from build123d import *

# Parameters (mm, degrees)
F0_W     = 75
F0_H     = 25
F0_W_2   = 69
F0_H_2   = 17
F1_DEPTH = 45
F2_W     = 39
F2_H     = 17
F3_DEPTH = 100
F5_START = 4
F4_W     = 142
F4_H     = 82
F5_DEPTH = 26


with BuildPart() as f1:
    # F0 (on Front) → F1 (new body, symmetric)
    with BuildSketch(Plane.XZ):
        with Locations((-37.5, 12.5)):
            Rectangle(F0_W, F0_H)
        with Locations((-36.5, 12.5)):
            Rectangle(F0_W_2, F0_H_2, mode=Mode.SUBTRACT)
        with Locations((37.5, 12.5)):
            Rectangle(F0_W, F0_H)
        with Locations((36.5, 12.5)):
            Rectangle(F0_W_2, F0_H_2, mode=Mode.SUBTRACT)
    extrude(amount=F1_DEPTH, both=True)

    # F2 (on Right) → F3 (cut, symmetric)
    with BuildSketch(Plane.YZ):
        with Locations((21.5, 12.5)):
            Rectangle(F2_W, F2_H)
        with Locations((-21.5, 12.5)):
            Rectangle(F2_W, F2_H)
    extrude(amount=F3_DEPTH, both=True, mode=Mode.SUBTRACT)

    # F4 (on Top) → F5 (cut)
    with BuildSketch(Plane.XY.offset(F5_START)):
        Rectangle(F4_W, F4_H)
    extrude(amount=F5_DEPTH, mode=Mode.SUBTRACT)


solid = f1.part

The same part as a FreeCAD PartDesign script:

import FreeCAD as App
import Part
import Sketcher
from FreeCAD import Vector
Q = App.Units.Quantity


def add_polygon(sketch, points):
    """Adds a closed chain of lines whose ends are joined by coincident constraints."""
    first, n = sketch.GeometryCount, len(points)
    for a, b in zip(points, points[1:] + points[:1]):
        sketch.addGeometry(Part.LineSegment(App.Vector(*a, 0), App.Vector(*b, 0)), False)
    for i in range(n):
        sketch.addConstraint(Sketcher.Constraint("Coincident", first + i, 2, first + (i + 1) % n, 1))

doc = App.newDocument("Part")
body = doc.addObject("PartDesign::Body", "Body")

# Sketch on XZ plane
sketch1 = body.newObject("Sketcher::SketchObject", "Sketch")
sketch1.AttachmentSupport = (doc.getObject("XZ_Plane"), [""])
sketch1.MapMode = "FlatFace"
add_polygon(sketch1, [(-75, 25), (-75, 0), (75, 0), (75, 25)])  # lines 0-3
add_polygon(sketch1, [(-2, 4), (-71, 4), (-71, 21), (-2, 21)])  # lines 4-7
add_polygon(sketch1, [(71, 4), (2, 4), (2, 21), (71, 21)])  # lines 8-11
sketch1.addConstraint(Sketcher.Constraint("Vertical", 0))
sketch1.addConstraint(Sketcher.Constraint("Horizontal", 1))
sketch1.addConstraint(Sketcher.Constraint("Vertical", 2))
sketch1.addConstraint(Sketcher.Constraint("Horizontal", 3))
sketch1.addConstraint(Sketcher.Constraint("Horizontal", 4))
sketch1.addConstraint(Sketcher.Constraint("Vertical", 5))
sketch1.addConstraint(Sketcher.Constraint("Horizontal", 6))
sketch1.addConstraint(Sketcher.Constraint("Vertical", 7))
sketch1.addConstraint(Sketcher.Constraint("Horizontal", 8))
sketch1.addConstraint(Sketcher.Constraint("Vertical", 9))
sketch1.addConstraint(Sketcher.Constraint("Horizontal", 10))
sketch1.addConstraint(Sketcher.Constraint("Vertical", 11))
sketch1.addConstraint(Sketcher.Constraint("Symmetric", 0, 2, 1, 2, -1, 1))
sketch1.addConstraint(Sketcher.Constraint("Symmetric", 7, 2, 8, 2, -2))
sketch1.addConstraint(Sketcher.Constraint("Symmetric", 5, 2, 10, 2, -2))
sketch1.addConstraint(Sketcher.Constraint("DistanceX", 1, 1, 1, 2, Q("150 mm")))
sketch1.addConstraint(Sketcher.Constraint("DistanceX", 4, 2, 4, 1, Q("69 mm")))
sketch1.addConstraint(Sketcher.Constraint("DistanceY", 0, 2, 0, 1, Q("25 mm")))
sketch1.addConstraint(Sketcher.Constraint("DistanceY", 5, 1, 5, 2, Q("17 mm")))
sketch1.addConstraint(Sketcher.Constraint("DistanceX", 4, 2, -1, 1, Q("71 mm")))
sketch1.addConstraint(Sketcher.Constraint("DistanceY", -1, 1, 4, 2, Q("4 mm")))
pad1 = body.newObject("PartDesign::Pad", "Pad")
pad1.Profile = sketch1
pad1.Length = 90
pad1.Midplane = True

# Sketch on YZ plane
sketch2 = body.newObject("Sketcher::SketchObject", "Sketch001")
sketch2.AttachmentSupport = (doc.getObject("YZ_Plane"), [""])
sketch2.MapMode = "FlatFace"
add_polygon(sketch2, [(2, 21), (2, 4), (41, 4), (41, 21)])  # lines 0-3
add_polygon(sketch2, [(-41, 21), (-41, 4), (-2, 4), (-2, 21)])  # lines 4-7
sketch2.addConstraint(Sketcher.Constraint("Vertical", 0))
sketch2.addConstraint(Sketcher.Constraint("Horizontal", 1))
sketch2.addConstraint(Sketcher.Constraint("Vertical", 2))
sketch2.addConstraint(Sketcher.Constraint("Horizontal", 3))
sketch2.addConstraint(Sketcher.Constraint("Vertical", 4))
sketch2.addConstraint(Sketcher.Constraint("Horizontal", 5))
sketch2.addConstraint(Sketcher.Constraint("Vertical", 6))
sketch2.addConstraint(Sketcher.Constraint("Horizontal", 7))
sketch2.addConstraint(Sketcher.Constraint("Symmetric", 1, 2, 4, 2, -2))
sketch2.addConstraint(Sketcher.Constraint("Symmetric", 3, 2, 6, 2, -2))
sketch2.addConstraint(Sketcher.Constraint("DistanceX", 1, 1, 1, 2, Q("39 mm")))
sketch2.addConstraint(Sketcher.Constraint("DistanceY", 0, 2, 0, 1, Q("17 mm")))
sketch2.addConstraint(Sketcher.Constraint("DistanceX", -1, 1, 0, 2, Q("2 mm")))
sketch2.addConstraint(Sketcher.Constraint("DistanceY", -1, 1, 0, 2, Q("4 mm")))
pocket1 = body.newObject("PartDesign::Pocket", "Pocket")
pocket1.Profile = sketch2
pocket1.Length = 200
pocket1.Midplane = True

# Sketch on XY plane
sketch3 = body.newObject("Sketcher::SketchObject", "Sketch002")
sketch3.AttachmentSupport = (doc.getObject("XY_Plane"), [""])
sketch3.MapMode = "FlatFace"
sketch3.AttachmentOffset = App.Placement(Vector(0, 0, 4), App.Rotation())
add_polygon(sketch3, [(-71, 41), (-71, -41), (71, -41), (71, 41)])  # lines 0-3
sketch3.addConstraint(Sketcher.Constraint("Vertical", 0))
sketch3.addConstraint(Sketcher.Constraint("Horizontal", 1))
sketch3.addConstraint(Sketcher.Constraint("Vertical", 2))
sketch3.addConstraint(Sketcher.Constraint("Horizontal", 3))
sketch3.addConstraint(Sketcher.Constraint("Symmetric", 0, 2, 2, 2, -1, 1))
sketch3.addConstraint(Sketcher.Constraint("DistanceX", 1, 1, 1, 2, Q("142 mm")))
sketch3.addConstraint(Sketcher.Constraint("DistanceY", 0, 2, 0, 1, Q("82 mm")))
pocket2 = body.newObject("PartDesign::Pocket", "Pocket001")
pocket2.Profile = sketch3
pocket2.Length = 26
pocket2.Reversed = True

doc.recompute()
